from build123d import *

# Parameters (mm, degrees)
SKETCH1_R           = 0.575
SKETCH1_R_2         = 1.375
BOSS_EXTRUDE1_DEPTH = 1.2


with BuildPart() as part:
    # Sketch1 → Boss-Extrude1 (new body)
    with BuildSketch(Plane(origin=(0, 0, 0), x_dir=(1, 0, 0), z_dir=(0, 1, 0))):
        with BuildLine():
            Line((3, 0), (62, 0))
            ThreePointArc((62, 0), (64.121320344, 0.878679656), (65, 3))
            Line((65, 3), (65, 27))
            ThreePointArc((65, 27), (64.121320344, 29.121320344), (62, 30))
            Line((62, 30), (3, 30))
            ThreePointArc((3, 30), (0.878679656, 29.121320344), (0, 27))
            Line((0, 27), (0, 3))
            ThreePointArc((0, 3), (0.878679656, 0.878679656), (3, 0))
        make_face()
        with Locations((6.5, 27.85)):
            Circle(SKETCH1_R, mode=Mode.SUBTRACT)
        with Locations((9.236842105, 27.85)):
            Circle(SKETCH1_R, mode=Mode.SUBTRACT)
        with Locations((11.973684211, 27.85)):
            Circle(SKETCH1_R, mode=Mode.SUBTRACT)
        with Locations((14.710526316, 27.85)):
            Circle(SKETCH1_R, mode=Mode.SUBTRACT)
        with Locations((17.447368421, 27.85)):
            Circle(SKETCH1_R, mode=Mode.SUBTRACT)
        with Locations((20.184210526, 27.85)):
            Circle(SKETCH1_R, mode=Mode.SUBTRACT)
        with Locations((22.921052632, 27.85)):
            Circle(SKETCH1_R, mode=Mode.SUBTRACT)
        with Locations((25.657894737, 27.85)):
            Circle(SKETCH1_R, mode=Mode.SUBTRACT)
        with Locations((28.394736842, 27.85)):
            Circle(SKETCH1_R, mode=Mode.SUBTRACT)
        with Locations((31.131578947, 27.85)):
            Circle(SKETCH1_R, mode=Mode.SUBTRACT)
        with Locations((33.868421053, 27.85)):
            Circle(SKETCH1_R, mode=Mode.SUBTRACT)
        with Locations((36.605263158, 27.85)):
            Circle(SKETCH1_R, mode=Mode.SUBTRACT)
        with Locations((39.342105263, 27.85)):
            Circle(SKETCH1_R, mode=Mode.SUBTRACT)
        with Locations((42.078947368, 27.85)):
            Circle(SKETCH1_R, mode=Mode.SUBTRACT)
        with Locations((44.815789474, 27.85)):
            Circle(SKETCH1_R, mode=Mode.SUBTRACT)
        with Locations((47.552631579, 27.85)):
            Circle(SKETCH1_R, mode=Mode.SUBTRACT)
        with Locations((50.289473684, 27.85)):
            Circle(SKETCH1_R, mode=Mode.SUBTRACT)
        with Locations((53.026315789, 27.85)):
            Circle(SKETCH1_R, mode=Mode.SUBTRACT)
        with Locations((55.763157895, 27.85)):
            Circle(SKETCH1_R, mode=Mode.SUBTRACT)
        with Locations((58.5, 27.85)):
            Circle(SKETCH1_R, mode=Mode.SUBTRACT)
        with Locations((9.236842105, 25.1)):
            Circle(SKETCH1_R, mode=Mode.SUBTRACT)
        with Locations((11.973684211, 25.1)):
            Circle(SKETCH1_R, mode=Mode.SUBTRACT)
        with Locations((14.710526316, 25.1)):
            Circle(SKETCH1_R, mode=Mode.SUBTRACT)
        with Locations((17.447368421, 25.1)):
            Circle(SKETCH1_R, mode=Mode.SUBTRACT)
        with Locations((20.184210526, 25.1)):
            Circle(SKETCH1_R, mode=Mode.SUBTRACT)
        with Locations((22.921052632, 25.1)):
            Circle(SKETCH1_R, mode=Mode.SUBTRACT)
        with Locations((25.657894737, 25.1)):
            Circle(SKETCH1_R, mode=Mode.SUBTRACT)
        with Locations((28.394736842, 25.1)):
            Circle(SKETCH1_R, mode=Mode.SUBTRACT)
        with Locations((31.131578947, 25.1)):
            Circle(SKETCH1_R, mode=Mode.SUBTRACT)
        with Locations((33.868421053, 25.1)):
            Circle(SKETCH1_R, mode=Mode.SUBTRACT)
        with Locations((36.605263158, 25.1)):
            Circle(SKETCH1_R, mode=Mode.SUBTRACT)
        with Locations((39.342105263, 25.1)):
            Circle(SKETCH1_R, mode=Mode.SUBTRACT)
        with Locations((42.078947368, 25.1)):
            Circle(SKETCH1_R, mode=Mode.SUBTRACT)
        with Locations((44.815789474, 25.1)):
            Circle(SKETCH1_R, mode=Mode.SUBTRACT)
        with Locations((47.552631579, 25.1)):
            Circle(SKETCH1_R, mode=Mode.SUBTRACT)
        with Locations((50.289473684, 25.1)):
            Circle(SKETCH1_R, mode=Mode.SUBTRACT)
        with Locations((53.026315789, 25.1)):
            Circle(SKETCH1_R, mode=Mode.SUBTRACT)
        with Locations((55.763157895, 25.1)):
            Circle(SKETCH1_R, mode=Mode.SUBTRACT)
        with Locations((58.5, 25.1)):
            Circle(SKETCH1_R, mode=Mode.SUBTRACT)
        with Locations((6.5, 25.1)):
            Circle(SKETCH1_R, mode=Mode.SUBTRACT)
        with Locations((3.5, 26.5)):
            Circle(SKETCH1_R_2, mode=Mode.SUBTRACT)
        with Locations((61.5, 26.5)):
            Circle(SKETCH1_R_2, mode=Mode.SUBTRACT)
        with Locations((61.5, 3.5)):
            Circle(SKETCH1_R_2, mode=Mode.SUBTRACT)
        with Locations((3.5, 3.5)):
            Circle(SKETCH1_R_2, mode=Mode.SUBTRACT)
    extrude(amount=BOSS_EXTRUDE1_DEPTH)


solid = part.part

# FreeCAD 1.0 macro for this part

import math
import FreeCAD as App
import Part
import Sketcher

doc = App.newDocument("Part")
body = doc.addObject("PartDesign::Body", "Body")

sketch1 = body.newObject("Sketcher::SketchObject", "Sketch")
sketch1.AttachmentSupport = (doc.getObject("XZ_Plane"), [""])
sketch1.MapMode = "FlatFace"
sketch1.addGeometry(Part.LineSegment(App.Vector(3, 0, 0), App.Vector(62, 0, 0)), False)
sketch1.addGeometry(Part.ArcOfCircle(Part.Circle(App.Vector(62, -3, 0), App.Vector(0, 0, 1), 3), math.radians(0), math.radians(90)), False)
sketch1.addGeometry(Part.LineSegment(App.Vector(65, -3, 0), App.Vector(65, -27, 0)), False)
sketch1.addGeometry(Part.ArcOfCircle(Part.Circle(App.Vector(62, -27, 0), App.Vector(0, 0, 1), 3), math.radians(-90), math.radians(0)), False)
sketch1.addGeometry(Part.LineSegment(App.Vector(62, -30, 0), App.Vector(3, -30, 0)), False)
sketch1.addGeometry(Part.ArcOfCircle(Part.Circle(App.Vector(3, -27, 0), App.Vector(0, 0, 1), 3), math.radians(180), math.radians(270)), False)
sketch1.addGeometry(Part.LineSegment(App.Vector(0, -27, 0), App.Vector(0, -3, 0)), False)
sketch1.addGeometry(Part.ArcOfCircle(Part.Circle(App.Vector(3, -3, 0), App.Vector(0, 0, 1), 3), math.radians(90), math.radians(180)), False)
sketch1.addGeometry(Part.Circle(App.Vector(3.5, -3.5, 0), App.Vector(0, 0, 1), 1.4), False)
sketch1.addGeometry(Part.Circle(App.Vector(61.5, -3.5, 0), App.Vector(0, 0, 1), 1.4), False)
sketch1.addGeometry(Part.Circle(App.Vector(6.5, -25.1, 0), App.Vector(0, 0, 1), 0.6), False)
sketch1.addGeometry(Part.Circle(App.Vector(9.2, -25.1, 0), App.Vector(0, 0, 1), 0.6), False)
sketch1.addGeometry(Part.Circle(App.Vector(12, -25.1, 0), App.Vector(0, 0, 1), 0.6), False)
sketch1.addGeometry(Part.Circle(App.Vector(14.7, -25.1, 0), App.Vector(0, 0, 1), 0.6), False)
sketch1.addGeometry(Part.Circle(App.Vector(3.5, -26.5, 0), App.Vector(0, 0, 1), 1.4), False)
sketch1.addGeometry(Part.Circle(App.Vector(6.5, -27.9, 0), App.Vector(0, 0, 1), 0.6), False)
sketch1.addGeometry(Part.Circle(App.Vector(9.2, -27.9, 0), App.Vector(0, 0, 1), 0.6), False)
sketch1.addGeometry(Part.Circle(App.Vector(12, -27.9, 0), App.Vector(0, 0, 1), 0.6), False)
sketch1.addGeometry(Part.Circle(App.Vector(14.7, -27.9, 0), App.Vector(0, 0, 1), 0.6), False)
sketch1.addGeometry(Part.Circle(App.Vector(17.4, -25.1, 0), App.Vector(0, 0, 1), 0.6), False)
sketch1.addGeometry(Part.Circle(App.Vector(20.2, -25.1, 0), App.Vector(0, 0, 1), 0.6), False)
sketch1.addGeometry(Part.Circle(App.Vector(22.9, -25.1, 0), App.Vector(0, 0, 1), 0.6), False)
sketch1.addGeometry(Part.Circle(App.Vector(25.7, -25.1, 0), App.Vector(0, 0, 1), 0.6), False)
sketch1.addGeometry(Part.Circle(App.Vector(28.4, -25.1, 0), App.Vector(0, 0, 1), 0.6), False)
sketch1.addGeometry(Part.Circle(App.Vector(31.1, -25.1, 0), App.Vector(0, 0, 1), 0.6), False)
sketch1.addGeometry(Part.Circle(App.Vector(17.4, -27.9, 0), App.Vector(0, 0, 1), 0.6), False)
sketch1.addGeometry(Part.Circle(App.Vector(20.2, -27.9, 0), App.Vector(0, 0, 1), 0.6), False)
sketch1.addGeometry(Part.Circle(App.Vector(22.9, -27.9, 0), App.Vector(0, 0, 1), 0.6), False)
sketch1.addGeometry(Part.Circle(App.Vector(25.7, -27.9, 0), App.Vector(0, 0, 1), 0.6), False)
sketch1.addGeometry(Part.Circle(App.Vector(28.4, -27.9, 0), App.Vector(0, 0, 1), 0.6), False)
sketch1.addGeometry(Part.Circle(App.Vector(31.1, -27.9, 0), App.Vector(0, 0, 1), 0.6), False)
sketch1.addGeometry(Part.Circle(App.Vector(33.9, -25.1, 0), App.Vector(0, 0, 1), 0.6), False)
sketch1.addGeometry(Part.Circle(App.Vector(36.6, -25.1, 0), App.Vector(0, 0, 1), 0.6), False)
sketch1.addGeometry(Part.Circle(App.Vector(39.3, -25.1, 0), App.Vector(0, 0, 1), 0.6), False)
sketch1.addGeometry(Part.Circle(App.Vector(42.1, -25.1, 0), App.Vector(0, 0, 1), 0.6), False)
sketch1.addGeometry(Part.Circle(App.Vector(44.8, -25.1, 0), App.Vector(0, 0, 1), 0.6), False)
sketch1.addGeometry(Part.Circle(App.Vector(47.6, -25.1, 0), App.Vector(0, 0, 1), 0.6), False)
sketch1.addGeometry(Part.Circle(App.Vector(33.9, -27.9, 0), App.Vector(0, 0, 1), 0.6), False)
sketch1.addGeometry(Part.Circle(App.Vector(36.6, -27.9, 0), App.Vector(0, 0, 1), 0.6), False)
sketch1.addGeometry(Part.Circle(App.Vector(39.3, -27.9, 0), App.Vector(0, 0, 1), 0.6), False)
sketch1.addGeometry(Part.Circle(App.Vector(42.1, -27.9, 0), App.Vector(0, 0, 1), 0.6), False)
sketch1.addGeometry(Part.Circle(App.Vector(44.8, -27.9, 0), App.Vector(0, 0, 1), 0.6), False)
sketch1.addGeometry(Part.Circle(App.Vector(47.6, -27.9, 0), App.Vector(0, 0, 1), 0.6), False)
sketch1.addGeometry(Part.Circle(App.Vector(50.3, -25.1, 0), App.Vector(0, 0, 1), 0.6), False)
sketch1.addGeometry(Part.Circle(App.Vector(53, -25.1, 0), App.Vector(0, 0, 1), 0.6), False)
sketch1.addGeometry(Part.Circle(App.Vector(55.8, -25.1, 0), App.Vector(0, 0, 1), 0.6), False)
sketch1.addGeometry(Part.Circle(App.Vector(58.5, -25.1, 0), App.Vector(0, 0, 1), 0.6), False)
sketch1.addGeometry(Part.Circle(App.Vector(50.3, -27.9, 0), App.Vector(0, 0, 1), 0.6), False)
sketch1.addGeometry(Part.Circle(App.Vector(53, -27.9, 0), App.Vector(0, 0, 1), 0.6), False)
sketch1.addGeometry(Part.Circle(App.Vector(61.5, -26.5, 0), App.Vector(0, 0, 1), 1.4), False)
sketch1.addGeometry(Part.Circle(App.Vector(55.8, -27.9, 0), App.Vector(0, 0, 1), 0.6), False)
sketch1.addGeometry(Part.Circle(App.Vector(58.5, -27.9, 0), App.Vector(0, 0, 1), 0.6), False)
sketch1.addConstraint(Sketcher.Constraint("Tangent", 0, 2, 1, 2))
sketch1.addConstraint(Sketcher.Constraint("Tangent", 1, 1, 2, 1))
sketch1.addConstraint(Sketcher.Constraint("Tangent", 2, 2, 3, 2))
sketch1.addConstraint(Sketcher.Constraint("Tangent", 3, 1, 4, 1))
sketch1.addConstraint(Sketcher.Constraint("Tangent", 4, 2, 5, 2))
sketch1.addConstraint(Sketcher.Constraint("Tangent", 5, 1, 6, 1))
sketch1.addConstraint(Sketcher.Constraint("Tangent", 6, 2, 7, 2))
sketch1.addConstraint(Sketcher.Constraint("Tangent", 7, 1, 0, 1))
sketch1.addConstraint(Sketcher.Constraint("Horizontal", 0))
sketch1.addConstraint(Sketcher.Constraint("Vertical", 2))
sketch1.addConstraint(Sketcher.Constraint("Horizontal", 4))
sketch1.addConstraint(Sketcher.Constraint("Vertical", 6))
sketch1.addConstraint(Sketcher.Constraint("Equal", 1, 3))
sketch1.addConstraint(Sketcher.Constraint("Equal", 3, 5))
sketch1.addConstraint(Sketcher.Constraint("Equal", 5, 7))
sketch1.addConstraint(Sketcher.Constraint("Equal", 8, 9))
sketch1.addConstraint(Sketcher.Constraint("Equal", 10, 11))
sketch1.addConstraint(Sketcher.Constraint("Equal", 11, 12))
sketch1.addConstraint(Sketcher.Constraint("Equal", 12, 13))
sketch1.addConstraint(Sketcher.Constraint("Equal", 9, 14))
sketch1.addConstraint(Sketcher.Constraint("Equal", 13, 15))
sketch1.addConstraint(Sketcher.Constraint("Equal", 15, 16))
sketch1.addConstraint(Sketcher.Constraint("Equal", 16, 17))
sketch1.addConstraint(Sketcher.Constraint("Equal", 17, 18))
sketch1.addConstraint(Sketcher.Constraint("Equal", 18, 19))
sketch1.addConstraint(Sketcher.Constraint("Equal", 19, 20))
sketch1.addConstraint(Sketcher.Constraint("Equal", 20, 21))
sketch1.addConstraint(Sketcher.Constraint("Equal", 21, 22))
sketch1.addConstraint(Sketcher.Constraint("Equal", 22, 23))
sketch1.addConstraint(Sketcher.Constraint("Equal", 23, 24))
sketch1.addConstraint(Sketcher.Constraint("Equal", 24, 25))
sketch1.addConstraint(Sketcher.Constraint("Equal", 25, 26))
sketch1.addConstraint(Sketcher.Constraint("Equal", 26, 27))
sketch1.addConstraint(Sketcher.Constraint("Equal", 27, 28))
sketch1.addConstraint(Sketcher.Constraint("Equal", 28, 29))
sketch1.addConstraint(Sketcher.Constraint("Equal", 29, 30))
sketch1.addConstraint(Sketcher.Constraint("Equal", 30, 31))
sketch1.addConstraint(Sketcher.Constraint("Equal", 31, 32))
sketch1.addConstraint(Sketcher.Constraint("Equal", 32, 33))
sketch1.addConstraint(Sketcher.Constraint("Equal", 33, 34))
sketch1.addConstraint(Sketcher.Constraint("Equal", 34, 35))
sketch1.addConstraint(Sketcher.Constraint("Equal", 35, 36))
sketch1.addConstraint(Sketcher.Constraint("Equal", 36, 37))
sketch1.addConstraint(Sketcher.Constraint("Equal", 37, 38))
sketch1.addConstraint(Sketcher.Constraint("Equal", 38, 39))
sketch1.addConstraint(Sketcher.Constraint("Equal", 39, 40))
sketch1.addConstraint(Sketcher.Constraint("Equal", 40, 41))
sketch1.addConstraint(Sketcher.Constraint("Equal", 41, 42))
sketch1.addConstraint(Sketcher.Constraint("Equal", 42, 43))
sketch1.addConstraint(Sketcher.Constraint("Equal", 43, 44))
sketch1.addConstraint(Sketcher.Constraint("Equal", 44, 45))
sketch1.addConstraint(Sketcher.Constraint("Equal", 45, 46))
sketch1.addConstraint(Sketcher.Constraint("Equal", 46, 47))
sketch1.addConstraint(Sketcher.Constraint("Equal", 47, 48))
sketch1.addConstraint(Sketcher.Constraint("Equal", 14, 49))
sketch1.addConstraint(Sketcher.Constraint("Equal", 48, 50))
sketch1.addConstraint(Sketcher.Constraint("Equal", 50, 51))
sketch1.addConstraint(Sketcher.Constraint("PointOnObject", 0, 2, -1))
sketch1.addConstraint(Sketcher.Constraint("PointOnObject", 5, 1, -2))
sketch1.addConstraint(Sketcher.Constraint("Horizontal", 8, 3, 9, 3))
sketch1.addConstraint(Sketcher.Constraint("Horizontal", 10, 3, 11, 3))
sketch1.addConstraint(Sketcher.Constraint("Horizontal", 11, 3, 12, 3))
sketch1.addConstraint(Sketcher.Constraint("Horizontal", 12, 3, 13, 3))
sketch1.addConstraint(Sketcher.Constraint("Horizontal", 15, 3, 16, 3))
sketch1.addConstraint(Sketcher.Constraint("Horizontal", 16, 3, 17, 3))
sketch1.addConstraint(Sketcher.Constraint("Horizontal", 17, 3, 18, 3))
sketch1.addConstraint(Sketcher.Constraint("Horizontal", 13, 3, 19, 3))
sketch1.addConstraint(Sketcher.Constraint("Horizontal", 19, 3, 20, 3))
sketch1.addConstraint(Sketcher.Constraint("Horizontal", 20, 3, 21, 3))
sketch1.addConstraint(Sketcher.Constraint("Horizontal", 21, 3, 22, 3))
sketch1.addConstraint(Sketcher.Constraint("Horizontal", 22, 3, 23, 3))
sketch1.addConstraint(Sketcher.Constraint("Horizontal", 23, 3, 24, 3))
sketch1.addConstraint(Sketcher.Constraint("Horizontal", 18, 3, 25, 3))
sketch1.addConstraint(Sketcher.Constraint("Horizontal", 25, 3, 26, 3))
sketch1.addConstraint(Sketcher.Constraint("Horizontal", 26, 3, 27, 3))
sketch1.addConstraint(Sketcher.Constraint("Horizontal", 27, 3, 28, 3))
sketch1.addConstraint(Sketcher.Constraint("Horizontal", 28, 3, 29, 3))
sketch1.addConstraint(Sketcher.Constraint("Horizontal", 29, 3, 30, 3))
sketch1.addConstraint(Sketcher.Constraint("Horizontal", 24, 3, 31, 3))
sketch1.addConstraint(Sketcher.Constraint("Horizontal", 31, 3, 32, 3))
sketch1.addConstraint(Sketcher.Constraint("Horizontal", 32, 3, 33, 3))
sketch1.addConstraint(Sketcher.Constraint("Horizontal", 33, 3, 34, 3))
sketch1.addConstraint(Sketcher.Constraint("Horizontal", 34, 3, 35, 3))
sketch1.addConstraint(Sketcher.Constraint("Horizontal", 35, 3, 36, 3))
sketch1.addConstraint(Sketcher.Constraint("Horizontal", 30, 3, 37, 3))
sketch1.addConstraint(Sketcher.Constraint("Horizontal", 37, 3, 38, 3))
sketch1.addConstraint(Sketcher.Constraint("Horizontal", 38, 3, 39, 3))
sketch1.addConstraint(Sketcher.Constraint("Horizontal", 39, 3, 40, 3))
sketch1.addConstraint(Sketcher.Constraint("Horizontal", 40, 3, 41, 3))
sketch1.addConstraint(Sketcher.Constraint("Horizontal", 41, 3, 42, 3))
sketch1.addConstraint(Sketcher.Constraint("Horizontal", 36, 3, 43, 3))
sketch1.addConstraint(Sketcher.Constraint("Horizontal", 43, 3, 44, 3))
sketch1.addConstraint(Sketcher.Constraint("Horizontal", 44, 3, 45, 3))
sketch1.addConstraint(Sketcher.Constraint("Horizontal", 45, 3, 46, 3))
sketch1.addConstraint(Sketcher.Constraint("Horizontal", 42, 3, 47, 3))
sketch1.addConstraint(Sketcher.Constraint("Horizontal", 47, 3, 48, 3))
sketch1.addConstraint(Sketcher.Constraint("Horizontal", 14, 3, 49, 3))
sketch1.addConstraint(Sketcher.Constraint("Horizontal", 48, 3, 50, 3))
sketch1.addConstraint(Sketcher.Constraint("Horizontal", 50, 3, 51, 3))
sketch1.addConstraint(Sketcher.Constraint("Vertical", 8, 3, 14, 3))
sketch1.addConstraint(Sketcher.Constraint("Vertical", 10, 3, 15, 3))
sketch1.addConstraint(Sketcher.Constraint("Vertical", 11, 3, 16, 3))
sketch1.addConstraint(Sketcher.Constraint("Vertical", 12, 3, 17, 3))
sketch1.addConstraint(Sketcher.Constraint("Vertical", 13, 3, 18, 3))
sketch1.addConstraint(Sketcher.Constraint("Vertical", 19, 3, 25, 3))
sketch1.addConstraint(Sketcher.Constraint("Vertical", 20, 3, 26, 3))
sketch1.addConstraint(Sketcher.Constraint("Vertical", 21, 3, 27, 3))
sketch1.addConstraint(Sketcher.Constraint("Vertical", 22, 3, 28, 3))
sketch1.addConstraint(Sketcher.Constraint("Vertical", 23, 3, 29, 3))
sketch1.addConstraint(Sketcher.Constraint("Vertical", 24, 3, 30, 3))
sketch1.addConstraint(Sketcher.Constraint("Vertical", 31, 3, 37, 3))
sketch1.addConstraint(Sketcher.Constraint("Vertical", 32, 3, 38, 3))
sketch1.addConstraint(Sketcher.Constraint("Vertical", 33, 3, 39, 3))
sketch1.addConstraint(Sketcher.Constraint("Vertical", 34, 3, 40, 3))
sketch1.addConstraint(Sketcher.Constraint("Vertical", 35, 3, 41, 3))
sketch1.addConstraint(Sketcher.Constraint("Vertical", 36, 3, 42, 3))
sketch1.addConstraint(Sketcher.Constraint("Vertical", 43, 3, 47, 3))
sketch1.addConstraint(Sketcher.Constraint("Vertical", 44, 3, 48, 3))
sketch1.addConstraint(Sketcher.Constraint("Vertical", 9, 3, 49, 3))
sketch1.addConstraint(Sketcher.Constraint("Vertical", 45, 3, 50, 3))
sketch1.addConstraint(Sketcher.Constraint("Vertical", 46, 3, 51, 3))
sketch1.addConstraint(Sketcher.Constraint("Radius", 1, 3.0))
sketch1.addConstraint(Sketcher.Constraint("Diameter", 8, 2.75))
sketch1.addConstraint(Sketcher.Constraint("Diameter", 10, 1.15))
sketch1.addConstraint(Sketcher.Constraint("DistanceX", 0, 1, 0, 2, 59.0))
sketch1.addConstraint(Sketcher.Constraint("DistanceY", 2, 2, 2, 1, 24.0))
sketch1.addConstraint(Sketcher.Constraint("DistanceX", 8, 3, 9, 3, 58.0))
sketch1.addConstraint(Sketcher.Constraint("DistanceX", 8, 3, 10, 3, 3.0))
sketch1.addConstraint(Sketcher.Constraint("DistanceX", 46, 3, 49, 3, 3.0))
sketch1.addConstraint(Sketcher.Constraint("DistanceX", -1, 1, 8, 3, 3.5))
sketch1.addConstraint(Sketcher.Constraint("DistanceY", 8, 3, -1, 1, 3.5))
sketch1.addConstraint(Sketcher.Constraint("DistanceY", 10, 3, -1, 1, 25.1))
sketch1.addConstraint(Sketcher.Constraint("DistanceY", 14, 3, -1, 1, 26.5))
sketch1.addConstraint(Sketcher.Constraint("DistanceY", 15, 3, -1, 1, 27.85))
sketch1.addConstraint(Sketcher.Constraint("DistanceX", -1, 1, 19, 3, 17.447368))
sketch1.addConstraint(Sketcher.Constraint("DistanceX", -1, 1, 20, 3, 20.184211))
sketch1.addConstraint(Sketcher.Constraint("DistanceX", -1, 1, 24, 3, 31.131579))
sketch1.addConstraint(Sketcher.Constraint("DistanceX", -1, 1, 31, 3, 33.868421))
sketch1.addConstraint(Sketcher.Constraint("DistanceX", -1, 1, 35, 3, 44.815789))
sketch1.addConstraint(Sketcher.Constraint("DistanceX", -1, 1, 36, 3, 47.552632))
sketch1.addConstraint(Sketcher.Constraint("DistanceX", 12, 3, 21, 3, 10.947368))
sketch1.addConstraint(Sketcher.Constraint("DistanceX", 13, 3, 22, 3, 10.947368))
sketch1.addConstraint(Sketcher.Constraint("DistanceX", 19, 3, 23, 3, 10.947368))
sketch1.addConstraint(Sketcher.Constraint("DistanceX", 13, 3, 23, 3, 13.684211))
sketch1.addConstraint(Sketcher.Constraint("DistanceX", 23, 3, 33, 3, 10.947368))
sketch1.addConstraint(Sketcher.Constraint("DistanceX", 24, 3, 34, 3, 10.947368))
sketch1.addConstraint(Sketcher.Constraint("DistanceX", 32, 3, 36, 3, 10.947368))
sketch1.addConstraint(Sketcher.Constraint("DistanceX", -1, 1, 11, 3, 9.236842))
sketch1.addConstraint(Sketcher.Constraint("DistanceX", -1, 1, 12, 3, 11.973684))
sketch1.addConstraint(Sketcher.Constraint("DistanceX", -1, 1, 43, 3, 50.289474))
sketch1.addConstraint(Sketcher.Constraint("DistanceX", -1, 1, 44, 3, 53.026316))
sketch1.addConstraint(Sketcher.Constraint("DistanceX", -1, 1, 45, 3, 55.763158))
pad1 = body.newObject("PartDesign::Pad", "Pad")
pad1.Profile = sketch1
pad1.Length = 1.2
pad1.Reversed = True

doc.recompute()
